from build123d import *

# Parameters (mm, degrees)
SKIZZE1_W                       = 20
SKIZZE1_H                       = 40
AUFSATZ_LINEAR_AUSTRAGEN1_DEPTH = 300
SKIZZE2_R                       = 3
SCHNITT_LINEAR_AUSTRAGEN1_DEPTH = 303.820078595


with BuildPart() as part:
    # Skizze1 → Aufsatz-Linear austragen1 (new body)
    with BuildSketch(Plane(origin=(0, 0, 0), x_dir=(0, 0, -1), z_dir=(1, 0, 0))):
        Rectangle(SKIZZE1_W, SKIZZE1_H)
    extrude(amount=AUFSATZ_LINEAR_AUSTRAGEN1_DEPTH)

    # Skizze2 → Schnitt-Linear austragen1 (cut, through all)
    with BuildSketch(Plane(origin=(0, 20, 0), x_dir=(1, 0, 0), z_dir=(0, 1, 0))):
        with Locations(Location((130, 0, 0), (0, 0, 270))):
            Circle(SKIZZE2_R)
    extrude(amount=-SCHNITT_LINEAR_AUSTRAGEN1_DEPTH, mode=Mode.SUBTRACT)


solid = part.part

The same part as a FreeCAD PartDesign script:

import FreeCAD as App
import Part
import Sketcher

V = App.Vector
Q = App.Units.Quantity

doc = App.newDocument("Part")
body = doc.addObject("PartDesign::Body", "Body")

# Sketch on YZ plane
sketch1 = body.newObject("Sketcher::SketchObject", "Sketch")
sketch1.AttachmentSupport = (doc.getObject("YZ_Plane"), [""])
sketch1.MapMode = "FlatFace"
sketch1.addGeometry([
    Part.LineSegment(V(20, 10, 0), V(-20, 10, 0)),
    Part.LineSegment(V(-20, 10, 0), V(-20, -10, 0)),
    Part.LineSegment(V(-20, -10, 0), V(20, -10, 0)),
    Part.LineSegment(V(20, -10, 0), V(20, 10, 0)),
], False)
sketch1.addConstraint([
    Sketcher.Constraint("Coincident", 0, 2, 1, 1),
    Sketcher.Constraint("Coincident", 1, 2, 2, 1),
    Sketcher.Constraint("Coincident", 2, 2, 3, 1),
    Sketcher.Constraint("Coincident", 3, 2, 0, 1),
    Sketcher.Constraint("Horizontal", 0),
    Sketcher.Constraint("Vertical", 1),
    Sketcher.Constraint("Horizontal", 2),
    Sketcher.Constraint("Vertical", 3),
    Sketcher.Constraint("Symmetric", 0, 2, 2, 2, -1, 1),
    Sketcher.Constraint("DistanceX", 0, 2, 0, 1, Q("40 mm")),
    Sketcher.Constraint("DistanceY", 1, 2, 1, 1, Q("20 mm")),
])
pad1 = body.newObject("PartDesign::Pad", "Pad")
pad1.Profile = sketch1
pad1.Length = 300

# Sketch on XZ plane
sketch2 = body.newObject("Sketcher::SketchObject", "Sketch001")
sketch2.AttachmentSupport = (doc.getObject("XZ_Plane"), [""])
sketch2.MapMode = "FlatFace"
sketch2.AttachmentOffset = App.Placement(V(0, 0, -20), App.Rotation())
sketch2.addGeometry(Part.Circle(V(130, 0, 0), V(0, 0, 1), 3), False)
sketch2.addConstraint([
    Sketcher.Constraint("PointOnObject", 0, 3, -1),
    Sketcher.Constraint("Diameter", 0, Q("6 mm")),
    Sketcher.Constraint("DistanceX", -1, 1, 0, 3, Q("130 mm")),
])
pocket1 = body.newObject("PartDesign::Pocket", "Pocket")
pocket1.Profile = sketch2
pocket1.Type = "ThroughAll"
pocket1.Reversed = True

doc.recompute()
